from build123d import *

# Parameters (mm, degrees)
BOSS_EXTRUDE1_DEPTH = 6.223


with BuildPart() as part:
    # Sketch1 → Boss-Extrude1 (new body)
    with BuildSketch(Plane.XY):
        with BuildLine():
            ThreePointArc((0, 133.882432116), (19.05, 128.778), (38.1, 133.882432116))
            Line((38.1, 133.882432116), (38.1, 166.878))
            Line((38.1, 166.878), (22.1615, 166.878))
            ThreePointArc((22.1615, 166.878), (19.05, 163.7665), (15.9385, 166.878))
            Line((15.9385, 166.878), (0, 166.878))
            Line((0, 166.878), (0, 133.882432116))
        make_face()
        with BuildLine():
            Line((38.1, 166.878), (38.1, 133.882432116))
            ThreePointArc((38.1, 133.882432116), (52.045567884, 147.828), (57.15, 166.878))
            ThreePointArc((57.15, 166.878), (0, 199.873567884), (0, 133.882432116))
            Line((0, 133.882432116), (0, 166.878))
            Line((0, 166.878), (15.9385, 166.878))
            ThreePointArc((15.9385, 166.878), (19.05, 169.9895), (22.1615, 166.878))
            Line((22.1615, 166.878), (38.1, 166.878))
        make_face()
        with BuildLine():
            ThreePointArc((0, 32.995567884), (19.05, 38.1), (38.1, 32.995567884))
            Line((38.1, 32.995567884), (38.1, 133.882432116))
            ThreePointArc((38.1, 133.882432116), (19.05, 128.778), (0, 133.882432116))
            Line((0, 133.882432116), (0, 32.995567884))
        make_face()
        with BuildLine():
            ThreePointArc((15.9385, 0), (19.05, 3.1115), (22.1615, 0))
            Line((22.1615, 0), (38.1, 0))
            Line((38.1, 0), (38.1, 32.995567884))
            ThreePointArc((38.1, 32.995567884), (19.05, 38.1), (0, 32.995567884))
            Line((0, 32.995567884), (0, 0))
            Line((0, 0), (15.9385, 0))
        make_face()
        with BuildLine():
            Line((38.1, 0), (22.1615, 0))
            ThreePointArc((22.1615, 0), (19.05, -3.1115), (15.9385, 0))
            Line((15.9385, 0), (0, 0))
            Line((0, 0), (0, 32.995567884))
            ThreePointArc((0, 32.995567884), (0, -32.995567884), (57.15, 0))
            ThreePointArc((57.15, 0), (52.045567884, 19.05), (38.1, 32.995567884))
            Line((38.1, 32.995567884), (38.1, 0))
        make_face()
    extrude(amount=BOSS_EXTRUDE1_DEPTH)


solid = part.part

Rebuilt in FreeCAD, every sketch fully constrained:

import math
import FreeCAD as App
import Part
import Sketcher
Q = App.Units.Quantity

doc = App.newDocument("Part")
params = doc.addObject("Spreadsheet::Sheet", "Params")
for row, (alias, value) in enumerate([
    ("sketch1_radius", "1.5 in"),
    ("sketch1_diameter", "0.245 in"),
    ("pad1_length", "0.245 in"),
], start=1):
    params.set(f"A{row}", alias)
    params.set(f"B{row}", "=" + value)
    params.setAlias(f"B{row}", alias)

body = doc.addObject("PartDesign::Body", "Body")

sketch1 = body.newObject("Sketcher::SketchObject", "Sketch")
sketch1.AttachmentSupport = (doc.getObject("XY_Plane"), [""])
sketch1.MapMode = "FlatFace"
sketch1.addGeometry([
    Part.LineSegment(App.Vector(38.1, 33, 0), App.Vector(38.1, 133.9, 0)),
    Part.ArcOfCircle(Part.Circle(App.Vector(19.1, 166.9, 0), App.Vector(0, 0, 1), 38.1), math.radians(-60), math.radians(0)),
    Part.ArcOfCircle(Part.Circle(App.Vector(19.1, 166.9, 0), App.Vector(0, 0, 1), 38.1), math.radians(0), math.radians(240)),
    Part.LineSegment(App.Vector(0, 133.9, 0), App.Vector(0, 33, 0)),
    Part.ArcOfCircle(Part.Circle(App.Vector(19.1, 0, 0), App.Vector(0, 0, 1), 38.1), math.radians(120), math.radians(360)),
    Part.ArcOfCircle(Part.Circle(App.Vector(19.1, 0, 0), App.Vector(0, 0, 1), 38.1), math.radians(0), math.radians(60)),
    Part.Circle(App.Vector(19.1, 0, 0), App.Vector(0, 0, 1), 3.1),
    Part.Circle(App.Vector(19.1, 166.9, 0), App.Vector(0, 0, 1), 3.1),
], False)
sketch1.addConstraint([
    Sketcher.Constraint("Coincident", 0, 2, 1, 1),
    Sketcher.Constraint("Tangent", 1, 2, 2, 1),
    Sketcher.Constraint("Coincident", 2, 2, 3, 1),
    Sketcher.Constraint("Coincident", 3, 2, 4, 1),
    Sketcher.Constraint("Tangent", 4, 2, 5, 1),
    Sketcher.Constraint("Coincident", 5, 2, 0, 1),
    Sketcher.Constraint("Vertical", 0),
    Sketcher.Constraint("Vertical", 3),
    Sketcher.Constraint("Coincident", 6, 3, 4, 3),
    Sketcher.Constraint("Coincident", 7, 3, 1, 3),
    Sketcher.Constraint("Equal", 1, 2),
    Sketcher.Constraint("Equal", 2, 4),
    Sketcher.Constraint("Equal", 4, 5),
    Sketcher.Constraint("Equal", 6, 7),
    Sketcher.Constraint("PointOnObject", 4, 3, -1),
    Sketcher.Constraint("PointOnObject", 2, 2, -2),
    Sketcher.Constraint("PointOnObject", 4, 2, -1),
    Sketcher.Constraint("Horizontal", 7, 3, 1, 2),
    Sketcher.Constraint("Horizontal", 0, 2, 2, 2),
    Sketcher.Constraint("Horizontal", 3, 2, 5, 2),
    Sketcher.Constraint("Radius", 1, Q("1.5 in")),
    Sketcher.Constraint("Diameter", 6, Q("0.245 in")),
    Sketcher.Constraint("DistanceX", -1, 1, 0, 2, Q("1.5 in")),
    Sketcher.Constraint("DistanceY", -1, 1, 1, 3, Q("6.57 in")),
])
sketch1.setExpression("Constraints[20]", "Params.sketch1_radius")
sketch1.setExpression("Constraints[21]", "Params.sketch1_diameter")
pad1 = body.newObject("PartDesign::Pad", "Pad")
pad1.Profile = sketch1
pad1.setExpression("Length", "Params.pad1_length")

doc.recompute()
